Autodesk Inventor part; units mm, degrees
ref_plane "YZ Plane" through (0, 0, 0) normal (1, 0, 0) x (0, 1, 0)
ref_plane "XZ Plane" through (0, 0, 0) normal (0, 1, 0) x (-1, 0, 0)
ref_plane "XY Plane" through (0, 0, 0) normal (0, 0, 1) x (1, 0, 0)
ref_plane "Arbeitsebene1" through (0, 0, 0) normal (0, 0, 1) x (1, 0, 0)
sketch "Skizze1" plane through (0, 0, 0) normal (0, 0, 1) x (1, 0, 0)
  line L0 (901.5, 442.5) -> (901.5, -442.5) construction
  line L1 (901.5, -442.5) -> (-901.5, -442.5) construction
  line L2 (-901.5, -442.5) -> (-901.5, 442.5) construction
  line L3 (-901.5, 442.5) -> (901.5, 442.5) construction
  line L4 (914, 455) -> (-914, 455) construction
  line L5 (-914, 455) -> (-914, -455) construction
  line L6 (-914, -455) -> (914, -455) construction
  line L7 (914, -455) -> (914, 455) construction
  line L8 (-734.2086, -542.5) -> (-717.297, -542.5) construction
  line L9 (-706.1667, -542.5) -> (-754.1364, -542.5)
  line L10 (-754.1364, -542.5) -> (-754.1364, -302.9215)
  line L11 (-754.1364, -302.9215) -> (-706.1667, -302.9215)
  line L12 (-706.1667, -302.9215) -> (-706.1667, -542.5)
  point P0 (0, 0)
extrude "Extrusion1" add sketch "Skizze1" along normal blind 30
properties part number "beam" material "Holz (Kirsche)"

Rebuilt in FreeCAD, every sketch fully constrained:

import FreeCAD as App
import Part
import Sketcher

V = App.Vector


def add_polygon(sketch, points):
    """Adds a closed chain of lines whose ends are joined by coincident constraints."""
    first, n = sketch.GeometryCount, len(points)
    for a, b in zip(points, points[1:] + points[:1]):
        sketch.addGeometry(Part.LineSegment(App.Vector(*a, 0), App.Vector(*b, 0)), False)
    for i in range(n):
        sketch.addConstraint(Sketcher.Constraint("Coincident", first + i, 2, first + (i + 1) % n, 1))

doc = App.newDocument("Part")
body = doc.addObject("PartDesign::Body", "Body")

sketch1 = body.newObject("Sketcher::SketchObject", "Sketch")
sketch1.AttachmentSupport = (doc.getObject("XY_Plane"), [""])
sketch1.MapMode = "FlatFace"
add_polygon(sketch1, [(-754, -542), (-706, -542), (-706, -303), (-754, -303)])
sketch1.addConstraint([
    Sketcher.Constraint("Horizontal", 0),
    Sketcher.Constraint("Vertical", 1),
    Sketcher.Constraint("Horizontal", 2),
    Sketcher.Constraint("Vertical", 3),
    Sketcher.Constraint("DistanceY", 0, 2, -1, 1, 542.5),
    Sketcher.Constraint("DistanceX", 0, 1, 0, 2, 47.9697),
    Sketcher.Constraint("DistanceY", 1, 1, 1, 2, 239.5785),
    Sketcher.Constraint("DistanceX", 0, 2, -1, 1, 706.1667),
])
pad1 = body.newObject("PartDesign::Pad", "Pad")
pad1.Profile = sketch1
pad1.Length = 30

doc.recompute()
